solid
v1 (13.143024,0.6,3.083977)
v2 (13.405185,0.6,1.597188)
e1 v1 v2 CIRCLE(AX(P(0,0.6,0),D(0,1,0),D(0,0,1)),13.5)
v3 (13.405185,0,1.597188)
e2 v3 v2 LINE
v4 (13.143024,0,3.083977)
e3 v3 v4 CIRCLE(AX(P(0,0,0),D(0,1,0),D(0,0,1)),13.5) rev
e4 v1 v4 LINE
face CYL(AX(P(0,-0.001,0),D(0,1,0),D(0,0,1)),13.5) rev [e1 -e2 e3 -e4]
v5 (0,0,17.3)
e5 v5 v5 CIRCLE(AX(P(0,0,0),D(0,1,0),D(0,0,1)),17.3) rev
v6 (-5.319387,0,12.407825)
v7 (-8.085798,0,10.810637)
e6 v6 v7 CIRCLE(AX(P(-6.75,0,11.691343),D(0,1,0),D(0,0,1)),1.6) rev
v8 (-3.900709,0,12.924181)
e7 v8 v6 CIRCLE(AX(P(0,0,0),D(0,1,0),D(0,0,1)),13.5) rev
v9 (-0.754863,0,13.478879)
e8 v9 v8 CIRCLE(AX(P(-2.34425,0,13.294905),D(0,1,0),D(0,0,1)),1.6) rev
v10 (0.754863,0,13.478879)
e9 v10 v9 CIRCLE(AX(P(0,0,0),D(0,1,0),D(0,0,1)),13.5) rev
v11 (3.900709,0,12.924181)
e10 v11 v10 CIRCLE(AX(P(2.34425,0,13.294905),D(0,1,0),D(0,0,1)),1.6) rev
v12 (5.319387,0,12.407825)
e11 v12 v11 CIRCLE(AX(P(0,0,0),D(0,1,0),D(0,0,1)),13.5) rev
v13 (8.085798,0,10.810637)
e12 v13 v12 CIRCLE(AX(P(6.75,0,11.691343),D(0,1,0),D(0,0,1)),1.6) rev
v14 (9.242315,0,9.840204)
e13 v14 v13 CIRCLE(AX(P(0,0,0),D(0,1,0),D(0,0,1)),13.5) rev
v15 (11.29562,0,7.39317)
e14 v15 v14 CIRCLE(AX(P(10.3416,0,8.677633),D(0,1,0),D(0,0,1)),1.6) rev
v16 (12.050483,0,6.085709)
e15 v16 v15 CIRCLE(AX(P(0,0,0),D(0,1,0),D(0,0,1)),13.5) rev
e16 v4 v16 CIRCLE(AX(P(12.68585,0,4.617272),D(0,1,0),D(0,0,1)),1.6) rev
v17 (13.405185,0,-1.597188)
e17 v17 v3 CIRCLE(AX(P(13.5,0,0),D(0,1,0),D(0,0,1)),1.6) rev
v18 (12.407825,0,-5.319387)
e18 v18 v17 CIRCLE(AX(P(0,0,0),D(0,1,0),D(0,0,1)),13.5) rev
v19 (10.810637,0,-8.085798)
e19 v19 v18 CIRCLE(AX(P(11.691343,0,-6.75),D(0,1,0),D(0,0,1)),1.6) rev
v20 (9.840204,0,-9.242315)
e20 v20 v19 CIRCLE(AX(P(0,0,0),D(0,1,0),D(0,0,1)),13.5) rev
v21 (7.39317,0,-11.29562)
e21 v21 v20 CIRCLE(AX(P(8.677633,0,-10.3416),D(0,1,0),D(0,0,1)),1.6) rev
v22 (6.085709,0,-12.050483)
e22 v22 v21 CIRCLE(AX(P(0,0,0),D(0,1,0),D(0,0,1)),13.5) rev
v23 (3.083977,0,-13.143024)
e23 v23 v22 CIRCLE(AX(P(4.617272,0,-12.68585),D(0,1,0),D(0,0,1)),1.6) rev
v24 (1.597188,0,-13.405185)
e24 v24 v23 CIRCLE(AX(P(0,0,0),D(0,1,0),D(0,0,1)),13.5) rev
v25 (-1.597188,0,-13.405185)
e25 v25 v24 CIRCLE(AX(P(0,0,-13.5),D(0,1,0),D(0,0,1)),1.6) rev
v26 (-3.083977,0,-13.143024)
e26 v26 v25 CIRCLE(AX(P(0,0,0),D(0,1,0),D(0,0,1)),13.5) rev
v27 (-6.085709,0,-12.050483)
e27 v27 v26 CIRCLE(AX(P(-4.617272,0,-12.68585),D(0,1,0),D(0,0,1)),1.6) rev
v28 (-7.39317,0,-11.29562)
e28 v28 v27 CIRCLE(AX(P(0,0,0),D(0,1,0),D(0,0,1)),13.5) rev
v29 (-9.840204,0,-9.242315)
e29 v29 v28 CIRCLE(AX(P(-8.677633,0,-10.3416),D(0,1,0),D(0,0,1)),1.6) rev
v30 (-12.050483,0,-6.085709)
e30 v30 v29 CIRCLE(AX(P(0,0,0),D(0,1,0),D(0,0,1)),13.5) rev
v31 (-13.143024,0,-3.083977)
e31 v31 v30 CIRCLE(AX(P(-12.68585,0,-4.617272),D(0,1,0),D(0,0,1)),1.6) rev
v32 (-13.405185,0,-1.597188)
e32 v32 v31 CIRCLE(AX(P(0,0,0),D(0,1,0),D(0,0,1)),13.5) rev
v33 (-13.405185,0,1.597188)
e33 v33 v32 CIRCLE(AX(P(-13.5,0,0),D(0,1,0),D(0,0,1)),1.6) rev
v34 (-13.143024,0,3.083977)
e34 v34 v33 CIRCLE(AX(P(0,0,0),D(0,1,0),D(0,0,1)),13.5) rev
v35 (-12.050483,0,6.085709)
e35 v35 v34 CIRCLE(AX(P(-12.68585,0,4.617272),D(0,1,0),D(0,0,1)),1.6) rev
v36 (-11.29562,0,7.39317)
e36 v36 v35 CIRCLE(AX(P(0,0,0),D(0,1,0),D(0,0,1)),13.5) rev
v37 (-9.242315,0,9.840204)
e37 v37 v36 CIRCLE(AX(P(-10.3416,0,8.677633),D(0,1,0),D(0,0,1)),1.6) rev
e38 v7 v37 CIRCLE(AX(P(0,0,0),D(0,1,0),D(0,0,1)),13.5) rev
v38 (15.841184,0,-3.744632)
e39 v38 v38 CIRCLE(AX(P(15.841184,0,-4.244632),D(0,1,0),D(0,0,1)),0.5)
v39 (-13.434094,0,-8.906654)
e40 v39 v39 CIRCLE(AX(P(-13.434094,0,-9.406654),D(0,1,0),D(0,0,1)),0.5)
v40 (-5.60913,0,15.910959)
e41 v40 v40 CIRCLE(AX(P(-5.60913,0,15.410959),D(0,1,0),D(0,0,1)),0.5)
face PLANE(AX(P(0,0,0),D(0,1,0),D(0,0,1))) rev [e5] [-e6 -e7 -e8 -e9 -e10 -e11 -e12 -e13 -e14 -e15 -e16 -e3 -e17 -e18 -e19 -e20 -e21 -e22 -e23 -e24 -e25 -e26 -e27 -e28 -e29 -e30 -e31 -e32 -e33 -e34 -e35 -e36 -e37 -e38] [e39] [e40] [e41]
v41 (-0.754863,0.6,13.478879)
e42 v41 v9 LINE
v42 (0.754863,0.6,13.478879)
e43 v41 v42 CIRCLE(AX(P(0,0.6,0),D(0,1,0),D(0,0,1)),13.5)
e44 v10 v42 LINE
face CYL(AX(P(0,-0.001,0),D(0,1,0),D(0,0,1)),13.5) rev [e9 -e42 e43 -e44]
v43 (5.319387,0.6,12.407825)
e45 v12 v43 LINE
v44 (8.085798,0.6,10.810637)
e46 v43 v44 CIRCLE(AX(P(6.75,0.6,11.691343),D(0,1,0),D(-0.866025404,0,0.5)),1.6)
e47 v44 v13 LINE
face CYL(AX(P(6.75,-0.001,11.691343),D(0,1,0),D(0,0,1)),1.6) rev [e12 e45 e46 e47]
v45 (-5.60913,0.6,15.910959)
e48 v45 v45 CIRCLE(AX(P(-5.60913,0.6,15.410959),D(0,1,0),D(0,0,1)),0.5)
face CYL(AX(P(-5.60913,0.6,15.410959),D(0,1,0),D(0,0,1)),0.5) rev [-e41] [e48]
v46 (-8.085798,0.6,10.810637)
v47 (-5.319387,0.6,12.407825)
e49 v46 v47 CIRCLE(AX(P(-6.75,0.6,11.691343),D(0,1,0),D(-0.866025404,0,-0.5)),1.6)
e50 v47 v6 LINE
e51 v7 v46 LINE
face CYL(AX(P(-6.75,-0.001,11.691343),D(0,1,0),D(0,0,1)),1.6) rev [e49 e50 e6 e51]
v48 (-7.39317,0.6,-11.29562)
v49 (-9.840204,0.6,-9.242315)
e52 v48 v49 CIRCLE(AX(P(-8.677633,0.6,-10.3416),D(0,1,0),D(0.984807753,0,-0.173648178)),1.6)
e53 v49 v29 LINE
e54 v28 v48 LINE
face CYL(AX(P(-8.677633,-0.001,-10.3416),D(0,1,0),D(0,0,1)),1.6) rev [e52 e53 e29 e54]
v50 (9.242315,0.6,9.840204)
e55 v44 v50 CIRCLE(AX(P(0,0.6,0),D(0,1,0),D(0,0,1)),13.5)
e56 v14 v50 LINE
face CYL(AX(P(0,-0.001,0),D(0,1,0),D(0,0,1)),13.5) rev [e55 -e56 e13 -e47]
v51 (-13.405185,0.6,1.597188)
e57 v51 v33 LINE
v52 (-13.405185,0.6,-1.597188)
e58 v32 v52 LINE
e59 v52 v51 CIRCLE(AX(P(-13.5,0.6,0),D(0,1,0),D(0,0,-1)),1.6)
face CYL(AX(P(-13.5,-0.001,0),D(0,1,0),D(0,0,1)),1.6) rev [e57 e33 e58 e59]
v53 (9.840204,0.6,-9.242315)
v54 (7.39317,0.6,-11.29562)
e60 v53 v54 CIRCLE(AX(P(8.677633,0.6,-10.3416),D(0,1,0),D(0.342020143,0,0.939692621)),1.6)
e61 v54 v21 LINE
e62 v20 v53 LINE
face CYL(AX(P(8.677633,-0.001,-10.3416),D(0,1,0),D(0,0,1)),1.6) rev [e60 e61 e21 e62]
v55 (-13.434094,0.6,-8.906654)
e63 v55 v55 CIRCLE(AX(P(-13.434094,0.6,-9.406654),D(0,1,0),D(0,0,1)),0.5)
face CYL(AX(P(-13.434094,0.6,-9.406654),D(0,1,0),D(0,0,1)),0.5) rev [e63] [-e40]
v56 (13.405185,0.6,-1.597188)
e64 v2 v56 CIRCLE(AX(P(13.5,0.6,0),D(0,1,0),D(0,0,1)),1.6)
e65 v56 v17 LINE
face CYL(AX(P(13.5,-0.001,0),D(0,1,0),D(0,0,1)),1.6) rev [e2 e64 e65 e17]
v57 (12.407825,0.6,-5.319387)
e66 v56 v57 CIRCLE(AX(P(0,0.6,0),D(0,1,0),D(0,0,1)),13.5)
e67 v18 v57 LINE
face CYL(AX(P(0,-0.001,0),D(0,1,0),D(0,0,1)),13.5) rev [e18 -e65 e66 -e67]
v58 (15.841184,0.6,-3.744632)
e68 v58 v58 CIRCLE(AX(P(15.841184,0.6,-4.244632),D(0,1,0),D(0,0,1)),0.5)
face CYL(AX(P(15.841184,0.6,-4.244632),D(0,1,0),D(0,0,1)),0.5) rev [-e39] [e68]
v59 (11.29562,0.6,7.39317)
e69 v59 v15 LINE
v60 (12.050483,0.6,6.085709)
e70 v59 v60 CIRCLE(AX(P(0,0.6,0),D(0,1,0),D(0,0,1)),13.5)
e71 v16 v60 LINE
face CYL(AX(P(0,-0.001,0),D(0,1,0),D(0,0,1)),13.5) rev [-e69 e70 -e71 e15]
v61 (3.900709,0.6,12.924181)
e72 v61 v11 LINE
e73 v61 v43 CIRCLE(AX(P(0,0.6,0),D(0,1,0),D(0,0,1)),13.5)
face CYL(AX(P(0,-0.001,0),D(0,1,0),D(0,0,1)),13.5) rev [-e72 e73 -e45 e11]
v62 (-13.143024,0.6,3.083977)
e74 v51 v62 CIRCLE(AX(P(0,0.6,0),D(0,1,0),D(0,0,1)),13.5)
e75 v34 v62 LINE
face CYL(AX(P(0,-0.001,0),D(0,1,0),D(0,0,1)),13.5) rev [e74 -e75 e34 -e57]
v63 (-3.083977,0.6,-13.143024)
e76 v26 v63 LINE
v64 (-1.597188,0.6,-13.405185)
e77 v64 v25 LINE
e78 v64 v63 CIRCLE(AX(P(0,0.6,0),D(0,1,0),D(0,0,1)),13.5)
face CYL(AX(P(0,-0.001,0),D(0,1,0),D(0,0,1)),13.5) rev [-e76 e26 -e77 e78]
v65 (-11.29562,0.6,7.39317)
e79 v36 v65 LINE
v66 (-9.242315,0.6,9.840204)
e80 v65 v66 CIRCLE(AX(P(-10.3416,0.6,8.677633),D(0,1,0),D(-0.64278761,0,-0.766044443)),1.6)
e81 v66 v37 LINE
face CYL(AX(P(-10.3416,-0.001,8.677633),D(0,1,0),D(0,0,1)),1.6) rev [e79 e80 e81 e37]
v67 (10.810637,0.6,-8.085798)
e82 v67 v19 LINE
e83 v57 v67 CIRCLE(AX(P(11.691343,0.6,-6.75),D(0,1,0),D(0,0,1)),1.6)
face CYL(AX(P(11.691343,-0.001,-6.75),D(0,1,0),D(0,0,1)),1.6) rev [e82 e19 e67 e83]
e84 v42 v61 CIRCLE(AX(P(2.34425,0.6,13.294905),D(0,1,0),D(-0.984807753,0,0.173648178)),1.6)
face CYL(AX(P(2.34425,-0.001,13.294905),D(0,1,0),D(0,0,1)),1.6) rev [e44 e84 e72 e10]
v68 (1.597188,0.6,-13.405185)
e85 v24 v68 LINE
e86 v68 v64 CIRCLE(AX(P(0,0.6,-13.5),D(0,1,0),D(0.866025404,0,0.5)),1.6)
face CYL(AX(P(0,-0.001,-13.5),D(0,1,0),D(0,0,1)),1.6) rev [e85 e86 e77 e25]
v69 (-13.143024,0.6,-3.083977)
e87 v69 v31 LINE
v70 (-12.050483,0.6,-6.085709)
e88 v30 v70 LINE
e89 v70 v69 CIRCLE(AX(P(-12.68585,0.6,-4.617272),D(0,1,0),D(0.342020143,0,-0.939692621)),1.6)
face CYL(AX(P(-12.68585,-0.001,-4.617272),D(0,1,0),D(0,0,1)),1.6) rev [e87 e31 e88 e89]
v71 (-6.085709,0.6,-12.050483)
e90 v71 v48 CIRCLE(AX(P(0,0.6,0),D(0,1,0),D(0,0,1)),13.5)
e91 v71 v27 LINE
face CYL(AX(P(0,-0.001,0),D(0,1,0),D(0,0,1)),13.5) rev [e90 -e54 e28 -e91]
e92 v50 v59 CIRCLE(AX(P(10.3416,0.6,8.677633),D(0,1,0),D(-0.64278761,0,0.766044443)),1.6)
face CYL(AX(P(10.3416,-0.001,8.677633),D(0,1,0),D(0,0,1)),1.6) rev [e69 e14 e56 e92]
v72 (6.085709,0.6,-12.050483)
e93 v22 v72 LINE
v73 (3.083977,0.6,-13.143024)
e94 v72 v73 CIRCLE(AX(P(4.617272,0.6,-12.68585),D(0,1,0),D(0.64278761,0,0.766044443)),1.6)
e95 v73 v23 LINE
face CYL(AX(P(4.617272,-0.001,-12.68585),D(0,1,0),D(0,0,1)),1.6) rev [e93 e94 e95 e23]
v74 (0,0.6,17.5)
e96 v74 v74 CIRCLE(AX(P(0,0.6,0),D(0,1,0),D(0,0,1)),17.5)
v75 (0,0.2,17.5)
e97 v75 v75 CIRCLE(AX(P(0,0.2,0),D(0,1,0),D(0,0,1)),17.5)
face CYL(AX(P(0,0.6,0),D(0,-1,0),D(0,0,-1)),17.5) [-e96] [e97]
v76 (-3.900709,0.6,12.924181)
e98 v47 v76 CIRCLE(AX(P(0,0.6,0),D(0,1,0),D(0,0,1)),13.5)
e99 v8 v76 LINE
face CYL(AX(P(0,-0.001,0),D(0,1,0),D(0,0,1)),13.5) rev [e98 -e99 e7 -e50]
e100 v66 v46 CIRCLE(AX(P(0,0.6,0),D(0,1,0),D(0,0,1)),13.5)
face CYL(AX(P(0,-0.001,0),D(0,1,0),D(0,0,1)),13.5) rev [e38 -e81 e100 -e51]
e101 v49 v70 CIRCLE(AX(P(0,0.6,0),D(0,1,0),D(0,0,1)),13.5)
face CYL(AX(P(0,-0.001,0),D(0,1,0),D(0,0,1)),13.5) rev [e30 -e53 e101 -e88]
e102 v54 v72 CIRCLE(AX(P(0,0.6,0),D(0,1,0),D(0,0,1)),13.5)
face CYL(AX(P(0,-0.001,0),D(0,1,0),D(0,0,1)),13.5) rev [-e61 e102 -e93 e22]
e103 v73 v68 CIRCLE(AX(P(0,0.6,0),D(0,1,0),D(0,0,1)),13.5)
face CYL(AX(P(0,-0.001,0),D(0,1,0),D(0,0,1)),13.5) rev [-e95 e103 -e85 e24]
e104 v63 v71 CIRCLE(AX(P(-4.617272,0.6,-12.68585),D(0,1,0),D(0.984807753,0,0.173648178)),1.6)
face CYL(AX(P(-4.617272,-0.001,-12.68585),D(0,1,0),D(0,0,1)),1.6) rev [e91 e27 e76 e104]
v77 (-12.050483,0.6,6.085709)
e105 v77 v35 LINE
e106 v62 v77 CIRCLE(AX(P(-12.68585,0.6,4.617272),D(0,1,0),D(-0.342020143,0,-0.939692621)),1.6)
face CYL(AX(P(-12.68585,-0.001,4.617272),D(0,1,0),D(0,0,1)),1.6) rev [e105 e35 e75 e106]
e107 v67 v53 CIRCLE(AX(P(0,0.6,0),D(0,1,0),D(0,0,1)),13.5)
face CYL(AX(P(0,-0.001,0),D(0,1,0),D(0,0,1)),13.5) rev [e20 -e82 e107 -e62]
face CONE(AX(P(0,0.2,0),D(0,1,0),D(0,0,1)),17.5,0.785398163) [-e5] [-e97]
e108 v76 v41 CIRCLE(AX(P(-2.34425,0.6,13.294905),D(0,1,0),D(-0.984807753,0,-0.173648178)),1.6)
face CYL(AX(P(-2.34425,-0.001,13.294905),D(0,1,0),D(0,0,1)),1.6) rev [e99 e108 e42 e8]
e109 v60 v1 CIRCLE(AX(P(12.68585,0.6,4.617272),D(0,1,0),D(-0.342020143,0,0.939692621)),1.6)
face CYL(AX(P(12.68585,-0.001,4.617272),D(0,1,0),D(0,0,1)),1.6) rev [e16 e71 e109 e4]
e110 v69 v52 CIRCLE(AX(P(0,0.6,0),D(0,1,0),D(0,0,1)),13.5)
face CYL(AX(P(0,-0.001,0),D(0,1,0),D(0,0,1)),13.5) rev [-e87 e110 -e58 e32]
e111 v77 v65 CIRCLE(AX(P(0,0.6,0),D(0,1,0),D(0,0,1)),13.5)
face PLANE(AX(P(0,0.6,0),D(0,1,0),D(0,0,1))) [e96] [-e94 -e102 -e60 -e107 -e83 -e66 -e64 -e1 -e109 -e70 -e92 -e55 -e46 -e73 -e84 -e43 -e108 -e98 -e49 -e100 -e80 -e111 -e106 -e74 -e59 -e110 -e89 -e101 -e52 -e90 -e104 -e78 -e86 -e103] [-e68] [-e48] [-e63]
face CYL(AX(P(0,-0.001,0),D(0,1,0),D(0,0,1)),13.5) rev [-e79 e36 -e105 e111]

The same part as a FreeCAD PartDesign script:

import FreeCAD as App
import Part
import Sketcher


def edges_at(feature, points):
    """Names of the edges that pass closest to the given points."""
    edges = feature.Shape.Edges
    near = lambda p: min(range(len(edges)), key=lambda i: edges[i].distToShape(Part.Vertex(*p))[0])
    return sorted({f"Edge{near(p) + 1}" for p in points})

doc = App.newDocument("Part")
body = doc.addObject("PartDesign::Body", "Body")

sketch1 = doc.addObject("Sketcher::SketchObject", "Sketch")
body.addObject(sketch1)
sketch1.AttachmentSupport = (doc.XZ_Plane, [""])
sketch1.MapMode = "FlatFace"
sketch1.addGeometry(Part.Circle(App.Vector(0, 0, 0), App.Vector(0, 0, 1), 18), False)
sketch1.addConstraint([
    Sketcher.Constraint("Coincident", 0, 3, -1, 1),
    Sketcher.Constraint("Diameter", 0, 35.0),
])
pad1 = doc.addObject("PartDesign::Pad", "Pad")
body.addObject(pad1)
pad1.Profile = sketch1
pad1.Length = 0.6
pad1.Reversed = True

sketch2 = doc.addObject("Sketcher::SketchObject", "Sketch001")
body.addObject(sketch2)
sketch2.AttachmentSupport = (doc.XZ_Plane, [""])
sketch2.MapMode = "FlatFace"
sketch2.AttachmentOffset = App.Placement(App.Vector(0, 0, -0.6), App.Rotation())
sketch2.addGeometry(Part.Circle(App.Vector(0, 0, 0), App.Vector(0, 0, 1), 14), False)
sketch2.addConstraint([
    Sketcher.Constraint("Coincident", 0, 3, -1, 1),
    Sketcher.Constraint("Diameter", 0, 27.0),
])
pocket1 = doc.addObject("PartDesign::Pocket", "Pocket")
body.addObject(pocket1)
pocket1.Profile = sketch2
pocket1.Type = "UpToFirst"
pocket1.Reversed = True

sketch3 = doc.addObject("Sketcher::SketchObject", "Sketch002")
body.addObject(sketch3)
sketch3.AttachmentSupport = (doc.XZ_Plane, [""])
sketch3.MapMode = "FlatFace"
sketch3.AttachmentOffset = App.Placement(App.Vector(0, 0, -0.6), App.Rotation())
sketch3.addGeometry(Part.Circle(App.Vector(11.7, -6.8, 0), App.Vector(0, 0, 1), 1.6), False)
sketch3.addConstraint([
    Sketcher.Constraint("Diameter", 0, 3.2),
    Sketcher.Constraint("DistanceY", 0, 3, -1, 1, 6.75),
    Sketcher.Constraint("DistanceX", -1, 1, 0, 3, 11.691343),
])
pocket2 = doc.addObject("PartDesign::Pocket", "Pocket001")
body.addObject(pocket2)
pocket2.Profile = sketch3
pocket2.Length = 0.6
pocket2.Reversed = True
doc.recompute()

polarpattern = doc.addObject("PartDesign::PolarPattern", "PolarPattern")
body.addObject(polarpattern)
polarpattern.Originals = [pocket2]
polarpattern.Axis = (doc.Y_Axis, [""])
polarpattern.Angle = 100
polarpattern.Occurrences = 6
body.Tip = polarpattern

sketch4 = doc.addObject("Sketcher::SketchObject", "Sketch003")
body.addObject(sketch4)
sketch4.AttachmentSupport = (doc.XZ_Plane, [""])
sketch4.MapMode = "FlatFace"
sketch4.AttachmentOffset = App.Placement(App.Vector(0, 0, -0.6), App.Rotation())
sketch4.addGeometry(Part.Circle(App.Vector(13.5, 0, 0), App.Vector(0, 0, 1), 1.6), False)
sketch4.addConstraint([
    Sketcher.Constraint("PointOnObject", 0, 3, -1),
    Sketcher.Constraint("Diameter", 0, 3.2),
    Sketcher.Constraint("DistanceX", -1, 1, 0, 3, 13.5),
])
pocket3 = doc.addObject("PartDesign::Pocket", "Pocket002")
body.addObject(pocket3)
pocket3.Profile = sketch4
pocket3.Length = 0.6
pocket3.Reversed = True
doc.recompute()

polarpattern2 = doc.addObject("PartDesign::PolarPattern", "PolarPattern001")
body.addObject(polarpattern2)
polarpattern2.Originals = [pocket3]
polarpattern2.Axis = (doc.Y_Axis, [""])
polarpattern2.Angle = 200
polarpattern2.Occurrences = 11
polarpattern2.Reversed = True
body.Tip = polarpattern2

sketch5 = doc.addObject("Sketcher::SketchObject", "Sketch004")
body.addObject(sketch5)
sketch5.AttachmentSupport = (doc.XZ_Plane, [""])
sketch5.MapMode = "FlatFace"
sketch5.AttachmentOffset = App.Placement(App.Vector(0, 0, -0.6), App.Rotation())
sketch5.addGeometry([
    Part.Circle(App.Vector(15.8, -4.2, 0), App.Vector(0, 0, 1), 0.5),
    Part.Circle(App.Vector(-13.4, -9.4, 0), App.Vector(0, 0, 1), 0.5),
    Part.Circle(App.Vector(-5.6, 15.4, 0), App.Vector(0, 0, 1), 0.5),
], False)
sketch5.addConstraint([
    Sketcher.Constraint("Equal", 0, 1),
    Sketcher.Constraint("Equal", 1, 2),
    Sketcher.Constraint("Diameter", 0, 1.0),
    Sketcher.Constraint("DistanceX", 2, 3, -1, 1, 5.60913),
    Sketcher.Constraint("DistanceY", -1, 1, 2, 3, 15.410959),
    Sketcher.Constraint("DistanceY", 1, 3, 0, 3, 5.162021),
    Sketcher.Constraint("DistanceY", 0, 3, 2, 3, 19.655591),
    Sketcher.Constraint("DistanceX", -1, 1, 0, 3, 15.841184),
    Sketcher.Constraint("DistanceX", 1, 3, -1, 1, 13.434094),
])
doc.recompute()
hole = doc.addObject("PartDesign::Hole", "Hole")
body.addObject(hole)
hole.Profile = sketch5
hole.ThreadType = "None"
hole.Diameter = 1
hole.DepthType = "Dimension"
hole.Depth = 0.6
hole.DrillPoint = "Flat"
hole.Reversed = True
doc.recompute()

chamfer = doc.addObject("PartDesign::Chamfer", "Chamfer")
body.addObject(chamfer)
chamfer.Base = (hole, edges_at(hole, [(-17.5, 0, 0)]))
chamfer.Size = 0.2

doc.recompute()
